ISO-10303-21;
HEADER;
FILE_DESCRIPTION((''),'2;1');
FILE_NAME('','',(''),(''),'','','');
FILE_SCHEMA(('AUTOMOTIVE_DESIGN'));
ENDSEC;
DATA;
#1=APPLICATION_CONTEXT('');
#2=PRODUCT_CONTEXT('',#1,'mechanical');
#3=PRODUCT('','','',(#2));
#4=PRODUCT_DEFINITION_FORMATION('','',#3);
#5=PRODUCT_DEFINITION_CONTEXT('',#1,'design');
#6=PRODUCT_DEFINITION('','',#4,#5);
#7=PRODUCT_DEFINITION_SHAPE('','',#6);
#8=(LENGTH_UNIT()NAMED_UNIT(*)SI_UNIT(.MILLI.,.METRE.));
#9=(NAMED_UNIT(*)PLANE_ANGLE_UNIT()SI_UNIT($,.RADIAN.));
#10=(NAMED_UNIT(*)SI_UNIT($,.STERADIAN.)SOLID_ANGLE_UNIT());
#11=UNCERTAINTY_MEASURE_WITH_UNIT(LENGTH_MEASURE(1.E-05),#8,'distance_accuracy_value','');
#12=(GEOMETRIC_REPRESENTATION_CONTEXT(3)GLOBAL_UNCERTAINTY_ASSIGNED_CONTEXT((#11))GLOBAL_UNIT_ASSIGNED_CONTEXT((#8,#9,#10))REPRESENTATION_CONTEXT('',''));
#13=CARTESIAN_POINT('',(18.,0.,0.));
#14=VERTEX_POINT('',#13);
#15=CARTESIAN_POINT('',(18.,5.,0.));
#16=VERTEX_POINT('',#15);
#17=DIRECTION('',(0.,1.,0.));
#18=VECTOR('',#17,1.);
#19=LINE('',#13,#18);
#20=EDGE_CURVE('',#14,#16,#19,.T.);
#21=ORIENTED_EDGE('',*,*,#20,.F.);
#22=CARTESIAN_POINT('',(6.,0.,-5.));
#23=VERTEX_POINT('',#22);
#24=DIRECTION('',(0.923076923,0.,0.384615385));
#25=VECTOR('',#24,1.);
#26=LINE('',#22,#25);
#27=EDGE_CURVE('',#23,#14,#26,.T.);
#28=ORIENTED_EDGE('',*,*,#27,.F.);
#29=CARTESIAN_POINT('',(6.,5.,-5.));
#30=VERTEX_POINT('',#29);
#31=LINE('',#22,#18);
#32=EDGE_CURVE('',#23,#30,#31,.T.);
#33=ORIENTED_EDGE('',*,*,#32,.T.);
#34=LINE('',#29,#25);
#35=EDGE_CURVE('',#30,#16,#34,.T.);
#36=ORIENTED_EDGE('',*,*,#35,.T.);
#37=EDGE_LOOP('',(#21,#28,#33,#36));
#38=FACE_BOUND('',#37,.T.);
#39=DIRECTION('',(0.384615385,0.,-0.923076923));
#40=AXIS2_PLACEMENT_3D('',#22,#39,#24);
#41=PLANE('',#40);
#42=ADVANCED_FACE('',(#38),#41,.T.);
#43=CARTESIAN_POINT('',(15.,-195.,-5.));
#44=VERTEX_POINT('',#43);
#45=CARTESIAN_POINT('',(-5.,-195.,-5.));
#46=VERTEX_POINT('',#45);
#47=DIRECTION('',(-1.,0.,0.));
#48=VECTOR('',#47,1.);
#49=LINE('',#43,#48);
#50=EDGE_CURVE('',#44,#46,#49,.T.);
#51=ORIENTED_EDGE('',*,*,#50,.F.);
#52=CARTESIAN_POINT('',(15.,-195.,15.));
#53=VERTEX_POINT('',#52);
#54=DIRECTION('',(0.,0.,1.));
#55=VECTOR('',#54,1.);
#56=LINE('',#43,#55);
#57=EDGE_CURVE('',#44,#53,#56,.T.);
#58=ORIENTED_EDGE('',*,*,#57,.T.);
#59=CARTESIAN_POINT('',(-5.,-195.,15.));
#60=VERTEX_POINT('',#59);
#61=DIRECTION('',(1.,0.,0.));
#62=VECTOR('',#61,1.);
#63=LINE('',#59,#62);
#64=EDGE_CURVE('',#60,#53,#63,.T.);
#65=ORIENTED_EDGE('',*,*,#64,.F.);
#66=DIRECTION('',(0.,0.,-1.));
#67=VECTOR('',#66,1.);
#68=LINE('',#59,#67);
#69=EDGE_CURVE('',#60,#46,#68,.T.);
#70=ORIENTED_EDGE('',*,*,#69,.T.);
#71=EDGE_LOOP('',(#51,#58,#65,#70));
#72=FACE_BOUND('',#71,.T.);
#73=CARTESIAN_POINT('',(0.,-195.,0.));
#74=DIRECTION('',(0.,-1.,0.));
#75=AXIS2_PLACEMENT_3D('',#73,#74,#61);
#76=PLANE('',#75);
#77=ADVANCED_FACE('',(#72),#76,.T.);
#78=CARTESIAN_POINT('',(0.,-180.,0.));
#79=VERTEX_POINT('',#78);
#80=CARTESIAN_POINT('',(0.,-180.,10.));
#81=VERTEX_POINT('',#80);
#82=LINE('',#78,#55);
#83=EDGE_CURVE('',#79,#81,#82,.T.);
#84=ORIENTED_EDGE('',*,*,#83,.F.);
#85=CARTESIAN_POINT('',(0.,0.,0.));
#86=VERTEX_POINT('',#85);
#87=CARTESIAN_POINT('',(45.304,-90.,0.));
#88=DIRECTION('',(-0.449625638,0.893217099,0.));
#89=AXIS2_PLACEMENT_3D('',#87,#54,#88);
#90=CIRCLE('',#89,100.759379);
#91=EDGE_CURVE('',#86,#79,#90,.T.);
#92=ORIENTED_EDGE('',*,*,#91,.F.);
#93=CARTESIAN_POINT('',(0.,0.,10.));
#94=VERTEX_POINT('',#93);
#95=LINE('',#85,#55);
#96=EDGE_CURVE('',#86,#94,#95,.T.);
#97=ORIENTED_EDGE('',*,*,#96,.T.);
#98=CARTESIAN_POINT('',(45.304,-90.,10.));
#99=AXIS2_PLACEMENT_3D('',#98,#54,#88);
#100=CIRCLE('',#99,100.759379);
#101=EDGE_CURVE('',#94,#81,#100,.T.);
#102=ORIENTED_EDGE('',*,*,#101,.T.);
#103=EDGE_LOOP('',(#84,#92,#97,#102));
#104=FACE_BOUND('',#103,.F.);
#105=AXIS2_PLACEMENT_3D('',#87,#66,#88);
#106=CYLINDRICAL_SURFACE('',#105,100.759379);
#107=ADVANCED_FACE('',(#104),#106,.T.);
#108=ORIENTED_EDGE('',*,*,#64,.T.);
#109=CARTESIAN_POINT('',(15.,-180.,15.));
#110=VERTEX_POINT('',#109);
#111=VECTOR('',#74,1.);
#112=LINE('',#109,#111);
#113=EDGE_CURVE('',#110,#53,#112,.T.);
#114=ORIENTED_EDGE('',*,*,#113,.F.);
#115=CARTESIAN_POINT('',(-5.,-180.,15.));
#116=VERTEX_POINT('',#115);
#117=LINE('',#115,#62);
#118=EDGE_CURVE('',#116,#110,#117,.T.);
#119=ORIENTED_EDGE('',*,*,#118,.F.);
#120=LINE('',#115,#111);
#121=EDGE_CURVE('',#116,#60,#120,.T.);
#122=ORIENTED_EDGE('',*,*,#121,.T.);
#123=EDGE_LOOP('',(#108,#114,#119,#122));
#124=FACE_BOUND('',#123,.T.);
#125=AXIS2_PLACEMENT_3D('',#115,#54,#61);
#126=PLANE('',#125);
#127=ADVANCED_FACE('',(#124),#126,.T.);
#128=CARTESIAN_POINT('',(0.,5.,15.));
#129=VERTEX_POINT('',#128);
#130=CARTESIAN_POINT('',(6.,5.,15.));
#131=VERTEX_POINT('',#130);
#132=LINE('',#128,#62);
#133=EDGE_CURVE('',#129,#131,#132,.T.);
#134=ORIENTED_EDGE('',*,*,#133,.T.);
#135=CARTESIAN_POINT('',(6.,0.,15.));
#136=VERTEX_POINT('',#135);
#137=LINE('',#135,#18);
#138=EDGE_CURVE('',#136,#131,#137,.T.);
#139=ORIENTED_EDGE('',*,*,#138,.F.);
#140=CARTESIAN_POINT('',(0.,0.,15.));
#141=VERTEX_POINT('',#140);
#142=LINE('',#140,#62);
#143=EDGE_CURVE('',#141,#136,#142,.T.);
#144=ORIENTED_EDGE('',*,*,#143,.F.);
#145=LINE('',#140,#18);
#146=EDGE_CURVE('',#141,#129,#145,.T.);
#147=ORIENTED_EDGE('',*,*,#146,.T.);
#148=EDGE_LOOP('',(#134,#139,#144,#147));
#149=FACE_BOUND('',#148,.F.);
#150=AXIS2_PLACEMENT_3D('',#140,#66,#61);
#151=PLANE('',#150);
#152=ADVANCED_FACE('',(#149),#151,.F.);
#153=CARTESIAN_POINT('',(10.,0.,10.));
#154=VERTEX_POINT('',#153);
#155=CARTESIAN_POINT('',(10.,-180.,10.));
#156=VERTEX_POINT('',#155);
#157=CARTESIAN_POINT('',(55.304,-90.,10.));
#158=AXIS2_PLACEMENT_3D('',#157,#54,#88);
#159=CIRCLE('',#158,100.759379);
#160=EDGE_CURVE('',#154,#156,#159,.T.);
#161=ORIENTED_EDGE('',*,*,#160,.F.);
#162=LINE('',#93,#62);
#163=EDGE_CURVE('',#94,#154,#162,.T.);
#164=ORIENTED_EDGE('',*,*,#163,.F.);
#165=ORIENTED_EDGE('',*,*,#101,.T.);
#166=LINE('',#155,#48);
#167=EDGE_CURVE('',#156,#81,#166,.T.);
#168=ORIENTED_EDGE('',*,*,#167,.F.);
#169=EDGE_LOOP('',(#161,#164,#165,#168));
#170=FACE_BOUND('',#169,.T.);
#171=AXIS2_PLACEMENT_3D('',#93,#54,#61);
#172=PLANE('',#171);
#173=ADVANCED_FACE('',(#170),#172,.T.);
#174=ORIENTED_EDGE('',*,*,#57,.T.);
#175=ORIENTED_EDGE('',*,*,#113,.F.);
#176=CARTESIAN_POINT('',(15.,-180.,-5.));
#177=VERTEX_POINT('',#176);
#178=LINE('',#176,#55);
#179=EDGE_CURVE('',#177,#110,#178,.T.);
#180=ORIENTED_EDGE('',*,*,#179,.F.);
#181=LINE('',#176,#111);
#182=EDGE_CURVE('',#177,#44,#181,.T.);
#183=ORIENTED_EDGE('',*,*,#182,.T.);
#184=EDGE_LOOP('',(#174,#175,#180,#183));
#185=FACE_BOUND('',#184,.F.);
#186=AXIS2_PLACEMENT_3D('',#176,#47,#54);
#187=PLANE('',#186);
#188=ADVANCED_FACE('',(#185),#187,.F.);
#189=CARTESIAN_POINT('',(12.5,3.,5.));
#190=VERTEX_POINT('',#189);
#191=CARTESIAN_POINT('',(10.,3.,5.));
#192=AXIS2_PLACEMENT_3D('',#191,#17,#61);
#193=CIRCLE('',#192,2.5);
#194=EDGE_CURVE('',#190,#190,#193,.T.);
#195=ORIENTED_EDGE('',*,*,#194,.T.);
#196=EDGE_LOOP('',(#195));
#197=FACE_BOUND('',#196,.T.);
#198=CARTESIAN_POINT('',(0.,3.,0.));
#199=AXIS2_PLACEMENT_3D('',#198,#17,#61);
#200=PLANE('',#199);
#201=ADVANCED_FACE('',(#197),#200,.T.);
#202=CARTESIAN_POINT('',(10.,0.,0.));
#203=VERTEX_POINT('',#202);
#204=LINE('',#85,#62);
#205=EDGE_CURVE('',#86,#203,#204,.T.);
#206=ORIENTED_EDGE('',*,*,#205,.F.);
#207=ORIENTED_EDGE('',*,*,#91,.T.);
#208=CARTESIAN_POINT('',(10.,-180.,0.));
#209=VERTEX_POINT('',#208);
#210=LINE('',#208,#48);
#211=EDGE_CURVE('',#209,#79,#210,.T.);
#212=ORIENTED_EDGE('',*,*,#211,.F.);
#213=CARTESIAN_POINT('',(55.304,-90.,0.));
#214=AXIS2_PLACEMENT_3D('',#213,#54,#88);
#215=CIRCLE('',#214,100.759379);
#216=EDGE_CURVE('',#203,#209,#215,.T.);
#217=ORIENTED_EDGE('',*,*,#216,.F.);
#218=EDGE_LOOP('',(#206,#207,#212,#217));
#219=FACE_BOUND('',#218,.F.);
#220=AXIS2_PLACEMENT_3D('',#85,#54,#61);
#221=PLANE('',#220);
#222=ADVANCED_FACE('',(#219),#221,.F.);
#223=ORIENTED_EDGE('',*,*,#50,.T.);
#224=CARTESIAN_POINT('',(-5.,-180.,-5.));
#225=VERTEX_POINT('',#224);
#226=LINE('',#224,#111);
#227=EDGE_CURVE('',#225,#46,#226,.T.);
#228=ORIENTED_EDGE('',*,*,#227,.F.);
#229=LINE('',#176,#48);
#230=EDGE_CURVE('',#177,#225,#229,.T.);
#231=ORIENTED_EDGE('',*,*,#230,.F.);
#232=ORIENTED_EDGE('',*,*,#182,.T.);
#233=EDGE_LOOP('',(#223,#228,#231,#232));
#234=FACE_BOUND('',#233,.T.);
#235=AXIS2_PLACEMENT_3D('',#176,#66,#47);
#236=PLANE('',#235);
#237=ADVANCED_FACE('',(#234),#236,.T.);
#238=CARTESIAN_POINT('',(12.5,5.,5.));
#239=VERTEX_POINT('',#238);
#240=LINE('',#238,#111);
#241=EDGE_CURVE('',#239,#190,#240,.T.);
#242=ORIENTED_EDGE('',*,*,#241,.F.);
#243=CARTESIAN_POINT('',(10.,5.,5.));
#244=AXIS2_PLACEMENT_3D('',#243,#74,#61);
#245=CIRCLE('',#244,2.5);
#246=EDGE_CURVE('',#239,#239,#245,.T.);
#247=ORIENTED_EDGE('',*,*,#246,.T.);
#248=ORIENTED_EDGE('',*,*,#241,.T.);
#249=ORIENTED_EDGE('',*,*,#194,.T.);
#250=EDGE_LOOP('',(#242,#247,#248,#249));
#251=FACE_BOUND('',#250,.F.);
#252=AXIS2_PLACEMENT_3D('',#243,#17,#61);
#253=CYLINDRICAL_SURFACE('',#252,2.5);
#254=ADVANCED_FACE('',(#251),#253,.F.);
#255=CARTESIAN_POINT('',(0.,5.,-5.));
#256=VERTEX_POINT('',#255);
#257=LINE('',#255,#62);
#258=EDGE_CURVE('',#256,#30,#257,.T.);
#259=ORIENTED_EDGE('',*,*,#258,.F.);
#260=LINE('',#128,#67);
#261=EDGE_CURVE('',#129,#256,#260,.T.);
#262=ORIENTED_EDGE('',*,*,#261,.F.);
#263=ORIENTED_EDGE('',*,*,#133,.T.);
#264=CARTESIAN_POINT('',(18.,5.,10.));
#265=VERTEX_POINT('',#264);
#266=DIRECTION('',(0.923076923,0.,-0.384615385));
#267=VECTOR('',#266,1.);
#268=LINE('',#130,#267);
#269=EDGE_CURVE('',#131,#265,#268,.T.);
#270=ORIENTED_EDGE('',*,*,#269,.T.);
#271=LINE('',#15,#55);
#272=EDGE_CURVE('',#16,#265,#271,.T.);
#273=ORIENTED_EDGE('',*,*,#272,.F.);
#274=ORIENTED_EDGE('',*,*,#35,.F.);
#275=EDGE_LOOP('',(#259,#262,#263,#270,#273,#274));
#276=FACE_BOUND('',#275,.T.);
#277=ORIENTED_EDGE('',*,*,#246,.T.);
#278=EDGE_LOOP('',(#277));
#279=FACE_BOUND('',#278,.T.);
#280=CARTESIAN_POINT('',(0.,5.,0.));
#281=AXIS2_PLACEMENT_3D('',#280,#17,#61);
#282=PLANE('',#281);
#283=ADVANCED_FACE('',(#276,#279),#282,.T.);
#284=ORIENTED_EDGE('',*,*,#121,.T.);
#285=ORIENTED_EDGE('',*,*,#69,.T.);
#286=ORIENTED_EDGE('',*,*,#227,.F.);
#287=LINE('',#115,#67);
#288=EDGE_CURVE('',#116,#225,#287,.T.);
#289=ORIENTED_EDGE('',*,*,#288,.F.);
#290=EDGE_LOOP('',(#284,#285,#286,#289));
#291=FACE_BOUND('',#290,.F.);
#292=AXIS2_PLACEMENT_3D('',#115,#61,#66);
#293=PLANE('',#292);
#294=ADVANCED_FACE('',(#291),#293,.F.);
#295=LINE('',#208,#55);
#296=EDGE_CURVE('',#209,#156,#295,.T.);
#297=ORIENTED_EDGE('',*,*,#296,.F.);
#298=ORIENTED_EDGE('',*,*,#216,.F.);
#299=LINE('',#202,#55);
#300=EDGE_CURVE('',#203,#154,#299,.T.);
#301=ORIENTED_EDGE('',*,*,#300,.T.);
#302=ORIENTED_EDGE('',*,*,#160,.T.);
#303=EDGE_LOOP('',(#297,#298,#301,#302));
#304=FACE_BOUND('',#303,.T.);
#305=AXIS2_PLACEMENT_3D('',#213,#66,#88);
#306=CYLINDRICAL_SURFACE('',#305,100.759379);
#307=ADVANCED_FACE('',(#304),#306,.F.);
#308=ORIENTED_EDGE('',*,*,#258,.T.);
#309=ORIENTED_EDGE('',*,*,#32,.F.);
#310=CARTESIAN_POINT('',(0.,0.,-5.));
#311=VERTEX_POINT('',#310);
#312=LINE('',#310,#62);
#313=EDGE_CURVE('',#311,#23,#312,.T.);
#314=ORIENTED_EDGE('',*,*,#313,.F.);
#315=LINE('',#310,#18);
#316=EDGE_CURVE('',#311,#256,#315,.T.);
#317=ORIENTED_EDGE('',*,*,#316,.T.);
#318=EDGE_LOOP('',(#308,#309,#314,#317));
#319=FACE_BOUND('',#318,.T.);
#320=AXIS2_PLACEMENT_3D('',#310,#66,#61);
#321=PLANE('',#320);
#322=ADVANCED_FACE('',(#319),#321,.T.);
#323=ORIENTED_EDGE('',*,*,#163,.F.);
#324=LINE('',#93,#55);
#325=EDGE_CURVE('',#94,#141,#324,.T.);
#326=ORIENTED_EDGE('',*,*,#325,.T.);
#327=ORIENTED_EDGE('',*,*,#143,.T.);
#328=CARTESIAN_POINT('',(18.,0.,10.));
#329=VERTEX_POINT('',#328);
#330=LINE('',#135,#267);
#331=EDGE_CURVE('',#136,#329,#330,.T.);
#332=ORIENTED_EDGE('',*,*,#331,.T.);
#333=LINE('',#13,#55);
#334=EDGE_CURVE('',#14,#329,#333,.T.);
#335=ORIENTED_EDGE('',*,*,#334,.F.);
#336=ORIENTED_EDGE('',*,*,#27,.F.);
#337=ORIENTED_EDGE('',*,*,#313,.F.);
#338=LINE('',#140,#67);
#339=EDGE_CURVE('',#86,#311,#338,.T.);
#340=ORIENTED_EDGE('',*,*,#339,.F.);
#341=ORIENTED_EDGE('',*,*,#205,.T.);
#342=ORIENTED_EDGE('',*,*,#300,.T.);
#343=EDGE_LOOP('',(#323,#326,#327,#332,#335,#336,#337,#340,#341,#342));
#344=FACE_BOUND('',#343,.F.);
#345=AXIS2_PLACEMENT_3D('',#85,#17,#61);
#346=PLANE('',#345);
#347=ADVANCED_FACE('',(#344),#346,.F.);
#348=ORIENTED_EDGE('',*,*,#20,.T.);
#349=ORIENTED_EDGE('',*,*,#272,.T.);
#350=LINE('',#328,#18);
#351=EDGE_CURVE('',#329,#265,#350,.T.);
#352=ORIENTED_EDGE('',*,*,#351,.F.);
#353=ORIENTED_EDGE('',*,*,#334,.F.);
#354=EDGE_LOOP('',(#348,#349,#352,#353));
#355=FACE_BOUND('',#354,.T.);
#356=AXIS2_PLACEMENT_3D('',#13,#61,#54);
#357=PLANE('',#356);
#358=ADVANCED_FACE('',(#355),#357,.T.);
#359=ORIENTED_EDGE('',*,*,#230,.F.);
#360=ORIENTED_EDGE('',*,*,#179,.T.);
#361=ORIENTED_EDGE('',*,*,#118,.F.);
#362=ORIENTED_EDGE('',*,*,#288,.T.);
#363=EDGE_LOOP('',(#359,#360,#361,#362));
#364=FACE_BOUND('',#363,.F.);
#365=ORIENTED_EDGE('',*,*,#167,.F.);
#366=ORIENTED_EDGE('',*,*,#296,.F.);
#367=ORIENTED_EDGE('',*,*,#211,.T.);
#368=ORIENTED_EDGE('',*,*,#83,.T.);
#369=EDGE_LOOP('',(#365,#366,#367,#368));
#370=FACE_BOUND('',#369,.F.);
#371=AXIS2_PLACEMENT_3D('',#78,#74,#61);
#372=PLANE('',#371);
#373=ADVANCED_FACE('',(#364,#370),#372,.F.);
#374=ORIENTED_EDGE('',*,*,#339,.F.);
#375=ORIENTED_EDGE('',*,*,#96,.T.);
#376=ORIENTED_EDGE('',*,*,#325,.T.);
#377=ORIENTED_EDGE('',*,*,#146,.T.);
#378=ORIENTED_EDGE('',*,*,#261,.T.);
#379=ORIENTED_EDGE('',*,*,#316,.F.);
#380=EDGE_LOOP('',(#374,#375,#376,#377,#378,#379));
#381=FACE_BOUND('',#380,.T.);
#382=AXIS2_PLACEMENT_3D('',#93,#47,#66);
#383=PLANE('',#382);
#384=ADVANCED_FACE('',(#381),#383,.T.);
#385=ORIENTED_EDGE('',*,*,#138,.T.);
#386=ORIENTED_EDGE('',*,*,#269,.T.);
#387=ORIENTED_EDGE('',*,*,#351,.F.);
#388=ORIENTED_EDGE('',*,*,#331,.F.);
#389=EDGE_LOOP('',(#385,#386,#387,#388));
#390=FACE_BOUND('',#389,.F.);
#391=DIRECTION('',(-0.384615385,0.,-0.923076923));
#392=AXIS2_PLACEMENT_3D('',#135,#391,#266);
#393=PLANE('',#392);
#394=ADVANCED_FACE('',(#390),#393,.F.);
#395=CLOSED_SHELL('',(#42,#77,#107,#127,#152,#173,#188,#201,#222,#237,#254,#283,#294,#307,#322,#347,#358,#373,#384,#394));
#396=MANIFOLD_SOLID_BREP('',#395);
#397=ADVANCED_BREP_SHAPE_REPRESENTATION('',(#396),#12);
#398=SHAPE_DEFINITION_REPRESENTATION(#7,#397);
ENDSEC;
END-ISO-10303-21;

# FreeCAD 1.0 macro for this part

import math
import FreeCAD as App
import Part
import Sketcher

V = App.Vector
Q = App.Units.Quantity

doc = App.newDocument("Part")
body = doc.addObject("PartDesign::Body", "Body")

sketch1 = body.newObject("Sketcher::SketchObject", "Sketch")
sketch1.AttachmentSupport = (doc.getObject("XY_Plane"), [""])
sketch1.MapMode = "FlatFace"
sketch1.addGeometry([
    Part.LineSegment(V(10, 0, 0), V(0, 0, 0)),
    Part.ArcOfCircle(Part.Circle(V(45, -90, 0), V(0, 0, 1), 101), math.radians(117), math.radians(243)),
    Part.LineSegment(V(0, -180, 0), V(10, -180, 0)),
    Part.ArcOfCircle(Part.Circle(V(55, -90, 0), V(0, 0, 1), 101), math.radians(117), math.radians(243)),
], False)
sketch1.addConstraint([
    Sketcher.Constraint("Coincident", 0, 2, 1, 1),
    Sketcher.Constraint("Coincident", 1, 2, 2, 1),
    Sketcher.Constraint("Coincident", 2, 2, 3, 2),
    Sketcher.Constraint("Coincident", 3, 1, 0, 1),
    Sketcher.Constraint("Horizontal", 0),
    Sketcher.Constraint("Horizontal", 2),
    Sketcher.Constraint("Coincident", 0, 2, -1, 1),
    Sketcher.Constraint("Equal", 1, 3),
    Sketcher.Constraint("PointOnObject", 1, 2, -2),
    Sketcher.Constraint("Horizontal", 1, 3, 3, 3),
    Sketcher.Constraint("DistanceX", 0, 2, 0, 1, Q("10 mm")),
    Sketcher.Constraint("DistanceY", 1, 2, -1, 1, Q("180 mm")),
    Sketcher.Constraint("Radius", 1, Q("100.7594 mm")),
])
pad1 = body.newObject("PartDesign::Pad", "Pad")
pad1.Profile = sketch1
pad1.Length = 10

sketch2 = body.newObject("Sketcher::SketchObject", "Sketch001")
sketch2.AttachmentSupport = (doc.getObject("XZ_Plane"), [""])
sketch2.MapMode = "FlatFace"
sketch2.addGeometry([
    Part.LineSegment(V(0, -5, 0), V(0, 15, 0)),
    Part.LineSegment(V(0, 15, 0), V(6, 15, 0)),
    Part.LineSegment(V(6, 15, 0), V(18, 10, 0)),
    Part.LineSegment(V(18, 10, 0), V(18, 0, 0)),
    Part.LineSegment(V(18, 0, 0), V(6, -5, 0)),
    Part.LineSegment(V(6, -5, 0), V(0, -5, 0)),
], False)
sketch2.addConstraint([
    Sketcher.Constraint("Coincident", 0, 2, 1, 1),
    Sketcher.Constraint("Coincident", 1, 2, 2, 1),
    Sketcher.Constraint("Coincident", 2, 2, 3, 1),
    Sketcher.Constraint("Coincident", 3, 2, 4, 1),
    Sketcher.Constraint("Coincident", 4, 2, 5, 1),
    Sketcher.Constraint("Coincident", 5, 2, 0, 1),
    Sketcher.Constraint("Vertical", 0),
    Sketcher.Constraint("Horizontal", 1),
    Sketcher.Constraint("Vertical", 3),
    Sketcher.Constraint("Horizontal", 5),
    Sketcher.Constraint("PointOnObject", 0, 2, -2),
    Sketcher.Constraint("PointOnObject", 3, 2, -1),
    Sketcher.Constraint("Vertical", 1, 2, 4, 2),
    Sketcher.Constraint("Equal", 2, 4),
    Sketcher.Constraint("DistanceX", 1, 1, 1, 2, Q("6 mm")),
    Sketcher.Constraint("DistanceY", 0, 1, 0, 2, Q("20 mm")),
    Sketcher.Constraint("Distance", 2, Q("13 mm")),
    Sketcher.Constraint("DistanceY", 4, 2, -1, 1, Q("5 mm")),
])
pad2 = body.newObject("PartDesign::Pad", "Pad001")
pad2.Profile = sketch2
pad2.Length = 5
pad2.Reversed = True

sketch3 = body.newObject("Sketcher::SketchObject", "Sketch002")
sketch3.AttachmentSupport = (doc.getObject("XZ_Plane"), [""])
sketch3.MapMode = "FlatFace"
sketch3.AttachmentOffset = App.Placement(V(0, 0, 180), App.Rotation())
sketch3.addGeometry([
    Part.LineSegment(V(15, 15, 0), V(-5, 15, 0)),
    Part.LineSegment(V(-5, 15, 0), V(-5, -5, 0)),
    Part.LineSegment(V(-5, -5, 0), V(15, -5, 0)),
    Part.LineSegment(V(15, -5, 0), V(15, 15, 0)),
], False)
sketch3.addConstraint([
    Sketcher.Constraint("Coincident", 0, 2, 1, 1),
    Sketcher.Constraint("Coincident", 1, 2, 2, 1),
    Sketcher.Constraint("Coincident", 2, 2, 3, 1),
    Sketcher.Constraint("Coincident", 3, 2, 0, 1),
    Sketcher.Constraint("Horizontal", 0),
    Sketcher.Constraint("Vertical", 1),
    Sketcher.Constraint("Horizontal", 2),
    Sketcher.Constraint("Vertical", 3),
    Sketcher.Constraint("Equal", 2, 1),
    Sketcher.Constraint("DistanceX", 0, 2, 0, 1, Q("20 mm")),
    Sketcher.Constraint("DistanceX", 0, 2, -1, 1, Q("5 mm")),
    Sketcher.Constraint("DistanceY", 1, 2, -1, 1, Q("5 mm")),
])
pad3 = body.newObject("PartDesign::Pad", "Pad002")
pad3.Profile = sketch3
pad3.Length = 15

sketch4 = body.newObject("Sketcher::SketchObject", "Sketch003")
sketch4.AttachmentSupport = (doc.getObject("XZ_Plane"), [""])
sketch4.MapMode = "FlatFace"
sketch4.AttachmentOffset = App.Placement(V(0, 0, -5), App.Rotation())
sketch4.addGeometry(Part.Circle(V(10, 5, 0), V(0, 0, 1), 2.5), False)
sketch4.addConstraint([
    Sketcher.Constraint("Diameter", 0, Q("5 mm")),
    Sketcher.Constraint("DistanceY", -1, 1, 0, 3, Q("5 mm")),
    Sketcher.Constraint("DistanceX", -1, 1, 0, 3, Q("10 mm")),
])
pocket1 = body.newObject("PartDesign::Pocket", "Pocket")
pocket1.Profile = sketch4
pocket1.Length = 2
pocket1.Reversed = True

doc.recompute()
